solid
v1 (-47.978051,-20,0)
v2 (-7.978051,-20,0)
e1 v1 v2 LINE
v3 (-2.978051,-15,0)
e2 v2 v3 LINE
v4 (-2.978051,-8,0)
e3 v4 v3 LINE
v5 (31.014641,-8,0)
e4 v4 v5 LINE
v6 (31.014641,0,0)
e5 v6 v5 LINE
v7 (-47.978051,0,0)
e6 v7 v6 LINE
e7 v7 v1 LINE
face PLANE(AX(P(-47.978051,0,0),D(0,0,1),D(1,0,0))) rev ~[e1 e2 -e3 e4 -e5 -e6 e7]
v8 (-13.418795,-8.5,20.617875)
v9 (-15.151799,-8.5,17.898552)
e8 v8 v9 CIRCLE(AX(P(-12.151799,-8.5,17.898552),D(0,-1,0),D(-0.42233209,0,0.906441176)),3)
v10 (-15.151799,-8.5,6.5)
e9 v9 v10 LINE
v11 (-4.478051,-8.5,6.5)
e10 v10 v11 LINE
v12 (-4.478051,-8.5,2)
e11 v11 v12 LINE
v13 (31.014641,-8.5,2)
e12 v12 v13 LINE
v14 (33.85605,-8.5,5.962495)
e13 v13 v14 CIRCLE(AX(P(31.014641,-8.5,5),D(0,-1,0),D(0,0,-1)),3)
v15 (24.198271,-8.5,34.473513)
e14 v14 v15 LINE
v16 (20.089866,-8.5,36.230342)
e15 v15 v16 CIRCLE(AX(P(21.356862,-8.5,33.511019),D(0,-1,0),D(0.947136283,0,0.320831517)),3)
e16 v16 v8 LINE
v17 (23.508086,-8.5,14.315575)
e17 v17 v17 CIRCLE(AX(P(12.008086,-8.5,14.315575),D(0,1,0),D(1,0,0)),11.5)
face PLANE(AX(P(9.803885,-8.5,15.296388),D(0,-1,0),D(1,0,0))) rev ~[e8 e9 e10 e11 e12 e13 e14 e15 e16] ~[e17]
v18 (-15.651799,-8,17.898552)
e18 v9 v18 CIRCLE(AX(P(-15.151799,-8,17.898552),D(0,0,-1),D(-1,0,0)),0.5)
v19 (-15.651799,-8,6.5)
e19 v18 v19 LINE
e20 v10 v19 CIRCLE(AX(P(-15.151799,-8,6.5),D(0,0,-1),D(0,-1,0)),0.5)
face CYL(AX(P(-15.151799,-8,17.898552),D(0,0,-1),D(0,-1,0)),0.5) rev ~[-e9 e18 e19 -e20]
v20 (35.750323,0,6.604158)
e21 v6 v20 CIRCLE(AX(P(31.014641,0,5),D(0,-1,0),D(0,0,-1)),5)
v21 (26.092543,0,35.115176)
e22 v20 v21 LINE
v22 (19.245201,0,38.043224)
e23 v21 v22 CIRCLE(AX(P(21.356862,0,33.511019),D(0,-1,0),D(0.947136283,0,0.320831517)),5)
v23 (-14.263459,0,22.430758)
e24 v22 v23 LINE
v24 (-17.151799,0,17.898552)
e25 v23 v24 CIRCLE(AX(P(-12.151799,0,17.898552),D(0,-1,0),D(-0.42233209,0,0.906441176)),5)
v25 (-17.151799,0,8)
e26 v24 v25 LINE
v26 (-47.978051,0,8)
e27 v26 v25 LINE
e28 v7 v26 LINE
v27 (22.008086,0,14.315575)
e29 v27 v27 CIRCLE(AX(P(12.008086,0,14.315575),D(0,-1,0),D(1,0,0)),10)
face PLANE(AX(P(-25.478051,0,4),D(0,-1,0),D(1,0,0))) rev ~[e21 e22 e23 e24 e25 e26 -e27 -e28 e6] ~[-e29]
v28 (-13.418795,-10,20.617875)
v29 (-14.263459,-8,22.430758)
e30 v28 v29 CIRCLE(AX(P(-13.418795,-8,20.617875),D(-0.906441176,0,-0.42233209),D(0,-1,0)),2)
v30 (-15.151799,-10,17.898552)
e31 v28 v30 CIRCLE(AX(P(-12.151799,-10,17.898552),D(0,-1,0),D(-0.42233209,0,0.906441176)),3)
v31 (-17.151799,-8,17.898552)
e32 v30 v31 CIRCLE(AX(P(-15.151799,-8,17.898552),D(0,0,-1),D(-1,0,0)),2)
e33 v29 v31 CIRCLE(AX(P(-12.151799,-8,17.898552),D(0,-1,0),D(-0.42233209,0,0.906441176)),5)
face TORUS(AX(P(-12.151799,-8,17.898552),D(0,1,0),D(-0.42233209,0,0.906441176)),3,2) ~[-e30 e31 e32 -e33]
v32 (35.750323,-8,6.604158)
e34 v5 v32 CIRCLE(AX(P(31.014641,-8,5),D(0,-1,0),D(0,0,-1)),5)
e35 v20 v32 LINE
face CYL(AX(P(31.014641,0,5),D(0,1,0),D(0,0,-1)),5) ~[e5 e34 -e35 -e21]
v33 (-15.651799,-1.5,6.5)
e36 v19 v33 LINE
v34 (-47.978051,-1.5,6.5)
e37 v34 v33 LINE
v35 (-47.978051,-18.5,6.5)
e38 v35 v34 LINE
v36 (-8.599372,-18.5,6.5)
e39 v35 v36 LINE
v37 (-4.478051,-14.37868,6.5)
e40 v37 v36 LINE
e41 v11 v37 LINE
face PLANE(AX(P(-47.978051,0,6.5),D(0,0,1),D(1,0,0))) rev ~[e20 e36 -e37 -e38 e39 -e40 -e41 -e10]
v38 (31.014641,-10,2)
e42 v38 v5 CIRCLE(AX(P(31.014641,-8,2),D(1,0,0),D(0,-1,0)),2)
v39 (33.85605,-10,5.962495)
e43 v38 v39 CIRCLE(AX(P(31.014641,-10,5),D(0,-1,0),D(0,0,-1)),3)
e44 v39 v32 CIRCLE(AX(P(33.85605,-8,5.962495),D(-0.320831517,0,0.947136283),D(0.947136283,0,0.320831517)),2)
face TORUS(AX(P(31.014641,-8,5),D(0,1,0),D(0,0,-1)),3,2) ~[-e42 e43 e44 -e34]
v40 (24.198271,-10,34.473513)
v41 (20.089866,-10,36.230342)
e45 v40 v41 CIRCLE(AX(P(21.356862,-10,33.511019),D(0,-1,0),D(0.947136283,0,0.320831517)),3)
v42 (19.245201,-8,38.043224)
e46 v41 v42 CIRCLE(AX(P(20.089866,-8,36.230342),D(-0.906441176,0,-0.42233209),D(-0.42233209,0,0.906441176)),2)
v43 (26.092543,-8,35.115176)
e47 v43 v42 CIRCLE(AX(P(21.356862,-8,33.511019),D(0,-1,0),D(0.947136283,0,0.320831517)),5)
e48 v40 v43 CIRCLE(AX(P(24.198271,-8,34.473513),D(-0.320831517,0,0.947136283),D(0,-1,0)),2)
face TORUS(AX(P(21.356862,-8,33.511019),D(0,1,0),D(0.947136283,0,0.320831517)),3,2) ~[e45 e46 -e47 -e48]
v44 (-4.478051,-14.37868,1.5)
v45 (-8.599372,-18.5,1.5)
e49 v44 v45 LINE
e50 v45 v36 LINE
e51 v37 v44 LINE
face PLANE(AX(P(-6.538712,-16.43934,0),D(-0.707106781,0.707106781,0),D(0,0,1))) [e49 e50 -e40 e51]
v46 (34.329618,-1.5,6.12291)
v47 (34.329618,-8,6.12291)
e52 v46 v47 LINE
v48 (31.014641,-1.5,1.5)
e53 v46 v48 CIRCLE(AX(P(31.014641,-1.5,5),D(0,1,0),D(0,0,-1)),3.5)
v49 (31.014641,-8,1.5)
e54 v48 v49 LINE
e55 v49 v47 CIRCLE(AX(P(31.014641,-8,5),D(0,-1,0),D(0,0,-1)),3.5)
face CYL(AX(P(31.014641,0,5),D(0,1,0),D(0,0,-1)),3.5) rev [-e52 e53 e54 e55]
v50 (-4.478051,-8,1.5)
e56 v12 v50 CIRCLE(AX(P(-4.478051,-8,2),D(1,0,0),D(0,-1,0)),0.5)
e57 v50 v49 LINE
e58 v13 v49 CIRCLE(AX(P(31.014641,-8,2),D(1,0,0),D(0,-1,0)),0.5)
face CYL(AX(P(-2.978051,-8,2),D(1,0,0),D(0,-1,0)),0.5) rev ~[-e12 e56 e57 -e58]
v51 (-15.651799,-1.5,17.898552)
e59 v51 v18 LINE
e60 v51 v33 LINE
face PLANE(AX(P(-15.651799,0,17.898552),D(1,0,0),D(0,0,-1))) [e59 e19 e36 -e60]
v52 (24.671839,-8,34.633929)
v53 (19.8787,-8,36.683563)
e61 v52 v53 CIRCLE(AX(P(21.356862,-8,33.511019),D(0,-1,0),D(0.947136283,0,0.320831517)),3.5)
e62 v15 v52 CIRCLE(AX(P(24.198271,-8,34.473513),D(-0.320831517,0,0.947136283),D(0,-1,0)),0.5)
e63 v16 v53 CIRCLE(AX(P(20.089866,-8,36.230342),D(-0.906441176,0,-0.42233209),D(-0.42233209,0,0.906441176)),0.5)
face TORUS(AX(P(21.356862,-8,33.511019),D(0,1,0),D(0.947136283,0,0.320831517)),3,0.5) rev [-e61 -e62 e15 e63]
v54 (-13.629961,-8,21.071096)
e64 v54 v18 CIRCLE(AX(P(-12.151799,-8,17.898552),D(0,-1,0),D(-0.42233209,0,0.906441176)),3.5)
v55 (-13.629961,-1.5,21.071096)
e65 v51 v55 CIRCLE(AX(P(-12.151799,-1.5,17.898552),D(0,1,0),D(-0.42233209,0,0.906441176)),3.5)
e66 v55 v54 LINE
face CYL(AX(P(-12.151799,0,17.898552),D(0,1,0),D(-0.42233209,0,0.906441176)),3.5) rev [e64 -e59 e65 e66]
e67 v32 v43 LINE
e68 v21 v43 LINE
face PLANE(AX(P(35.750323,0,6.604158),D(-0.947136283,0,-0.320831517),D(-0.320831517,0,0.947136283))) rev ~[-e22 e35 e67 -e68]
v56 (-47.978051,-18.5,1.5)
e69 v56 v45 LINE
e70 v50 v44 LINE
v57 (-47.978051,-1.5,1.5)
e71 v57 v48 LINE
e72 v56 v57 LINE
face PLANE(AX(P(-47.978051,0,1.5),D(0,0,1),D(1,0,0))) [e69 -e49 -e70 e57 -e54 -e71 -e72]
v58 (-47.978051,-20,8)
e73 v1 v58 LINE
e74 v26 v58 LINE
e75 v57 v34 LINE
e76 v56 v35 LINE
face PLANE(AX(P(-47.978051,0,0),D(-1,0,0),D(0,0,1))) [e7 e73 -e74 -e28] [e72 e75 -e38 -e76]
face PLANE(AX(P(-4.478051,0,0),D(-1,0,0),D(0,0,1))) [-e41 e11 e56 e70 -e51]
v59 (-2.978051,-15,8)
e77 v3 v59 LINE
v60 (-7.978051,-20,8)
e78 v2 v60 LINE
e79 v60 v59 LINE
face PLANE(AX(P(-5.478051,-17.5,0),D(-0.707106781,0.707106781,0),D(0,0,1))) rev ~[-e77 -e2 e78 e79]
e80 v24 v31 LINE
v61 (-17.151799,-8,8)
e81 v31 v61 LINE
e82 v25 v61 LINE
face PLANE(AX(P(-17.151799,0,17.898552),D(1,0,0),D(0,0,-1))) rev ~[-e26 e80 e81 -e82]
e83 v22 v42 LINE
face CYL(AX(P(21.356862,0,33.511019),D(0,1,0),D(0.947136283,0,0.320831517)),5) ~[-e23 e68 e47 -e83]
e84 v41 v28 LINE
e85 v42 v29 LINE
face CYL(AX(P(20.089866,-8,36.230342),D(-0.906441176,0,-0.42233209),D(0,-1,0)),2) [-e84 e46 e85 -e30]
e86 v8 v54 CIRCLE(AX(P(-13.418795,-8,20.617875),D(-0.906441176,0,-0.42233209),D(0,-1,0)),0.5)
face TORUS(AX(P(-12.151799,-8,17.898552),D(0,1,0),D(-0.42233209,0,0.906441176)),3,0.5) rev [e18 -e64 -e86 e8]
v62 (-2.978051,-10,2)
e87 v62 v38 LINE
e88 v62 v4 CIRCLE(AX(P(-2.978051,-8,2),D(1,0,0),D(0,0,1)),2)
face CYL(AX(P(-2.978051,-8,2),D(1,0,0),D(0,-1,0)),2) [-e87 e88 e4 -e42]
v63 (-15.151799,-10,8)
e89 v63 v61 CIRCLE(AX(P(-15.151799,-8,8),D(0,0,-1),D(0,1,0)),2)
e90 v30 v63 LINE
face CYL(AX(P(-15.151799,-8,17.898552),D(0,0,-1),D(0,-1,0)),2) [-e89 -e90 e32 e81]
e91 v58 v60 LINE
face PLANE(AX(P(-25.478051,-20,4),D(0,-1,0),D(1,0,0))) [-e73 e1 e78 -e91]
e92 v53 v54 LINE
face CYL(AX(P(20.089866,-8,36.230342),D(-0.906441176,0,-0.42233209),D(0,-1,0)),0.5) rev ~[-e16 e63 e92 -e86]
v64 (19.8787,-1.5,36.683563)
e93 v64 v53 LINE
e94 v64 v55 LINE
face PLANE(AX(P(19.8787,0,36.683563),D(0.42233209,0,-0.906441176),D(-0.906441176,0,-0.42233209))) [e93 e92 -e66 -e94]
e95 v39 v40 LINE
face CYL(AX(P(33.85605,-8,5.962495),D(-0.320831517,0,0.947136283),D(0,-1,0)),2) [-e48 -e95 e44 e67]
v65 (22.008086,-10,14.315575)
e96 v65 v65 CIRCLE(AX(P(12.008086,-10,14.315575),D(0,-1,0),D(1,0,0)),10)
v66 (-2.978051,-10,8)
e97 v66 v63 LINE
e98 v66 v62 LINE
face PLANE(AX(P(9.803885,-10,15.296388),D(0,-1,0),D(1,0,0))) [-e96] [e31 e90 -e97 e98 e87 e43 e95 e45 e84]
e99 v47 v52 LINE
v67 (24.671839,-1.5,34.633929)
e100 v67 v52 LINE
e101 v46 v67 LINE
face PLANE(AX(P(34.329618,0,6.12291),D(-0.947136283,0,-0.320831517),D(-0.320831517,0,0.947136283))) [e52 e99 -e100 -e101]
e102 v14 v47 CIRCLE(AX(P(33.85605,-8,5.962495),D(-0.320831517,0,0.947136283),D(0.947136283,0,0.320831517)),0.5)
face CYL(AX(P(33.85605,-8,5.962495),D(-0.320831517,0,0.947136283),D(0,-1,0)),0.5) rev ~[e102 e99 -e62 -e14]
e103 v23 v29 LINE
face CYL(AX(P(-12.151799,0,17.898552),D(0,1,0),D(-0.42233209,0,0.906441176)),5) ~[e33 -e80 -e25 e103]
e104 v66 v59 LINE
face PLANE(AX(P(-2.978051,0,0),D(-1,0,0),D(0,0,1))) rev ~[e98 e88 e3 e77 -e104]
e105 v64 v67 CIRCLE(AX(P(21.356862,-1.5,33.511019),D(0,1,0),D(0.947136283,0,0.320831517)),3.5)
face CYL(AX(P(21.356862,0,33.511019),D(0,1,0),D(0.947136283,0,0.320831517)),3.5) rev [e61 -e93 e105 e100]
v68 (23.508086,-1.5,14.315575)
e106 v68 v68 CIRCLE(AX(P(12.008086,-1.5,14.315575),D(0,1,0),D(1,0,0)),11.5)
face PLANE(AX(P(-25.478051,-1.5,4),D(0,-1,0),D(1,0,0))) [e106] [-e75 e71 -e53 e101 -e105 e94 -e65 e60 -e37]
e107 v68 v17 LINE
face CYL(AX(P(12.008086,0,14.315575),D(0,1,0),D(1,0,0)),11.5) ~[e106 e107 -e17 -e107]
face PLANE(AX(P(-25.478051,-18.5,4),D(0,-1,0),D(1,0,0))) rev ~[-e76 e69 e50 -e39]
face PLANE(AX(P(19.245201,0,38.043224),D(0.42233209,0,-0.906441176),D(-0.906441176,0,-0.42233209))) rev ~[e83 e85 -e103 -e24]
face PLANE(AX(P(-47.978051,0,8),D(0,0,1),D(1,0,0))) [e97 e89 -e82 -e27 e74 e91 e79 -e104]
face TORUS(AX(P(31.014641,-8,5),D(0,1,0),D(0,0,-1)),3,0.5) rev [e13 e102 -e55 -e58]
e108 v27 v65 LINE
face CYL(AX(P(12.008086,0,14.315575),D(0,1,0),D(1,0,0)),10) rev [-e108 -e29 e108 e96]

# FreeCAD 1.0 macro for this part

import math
import FreeCAD as App
import Part
import Sketcher

V = App.Vector


def edges_at(feature, points):
    """Names of the edges that pass closest to the given points."""
    edges = feature.Shape.Edges
    near = lambda p: min(range(len(edges)), key=lambda i: edges[i].distToShape(Part.Vertex(*p))[0])
    return sorted({f"Edge{near(p) + 1}" for p in points})


def faces_at(feature, points):
    """Names of the faces that lie closest to the given points."""
    faces = feature.Shape.Faces
    near = lambda p: min(range(len(faces)), key=lambda i: faces[i].distToShape(Part.Vertex(*p))[0])
    return sorted({f"Face{near(p) + 1}" for p in points})


def add_polygon(sketch, points):
    """Adds a closed chain of lines whose ends are joined by coincident constraints."""
    first, n = sketch.GeometryCount, len(points)
    for a, b in zip(points, points[1:] + points[:1]):
        sketch.addGeometry(Part.LineSegment(App.Vector(*a, 0), App.Vector(*b, 0)), False)
    for i in range(n):
        sketch.addConstraint(Sketcher.Constraint("Coincident", first + i, 2, first + (i + 1) % n, 1))

doc = App.newDocument("Part")
body = doc.addObject("PartDesign::Body", "Body")

# Sketch on XZ plane
sketch1 = body.newObject("Sketcher::SketchObject", "Sketch")
sketch1.AttachmentSupport = (doc.getObject("XZ_Plane"), [""])
sketch1.MapMode = "FlatFace"
sketch1.addGeometry(Part.LineSegment(V(-17, 18, 0), V(-17, 5, 0)), False)
sketch1.addGeometry(Part.ArcOfCircle(Part.Circle(V(-12, 5, 0), V(0, 0, 1), 5), math.radians(180), math.radians(270)), False)
sketch1.addGeometry(Part.LineSegment(V(-12, 0, 0), V(31, 0, 0)), False)
sketch1.addGeometry(Part.ArcOfCircle(Part.Circle(V(31, 5, 0), V(0, 0, 1), 5), math.radians(-90), math.radians(19)), False)
sketch1.addGeometry(Part.LineSegment(V(36, 7, 0), V(26, 35, 0)), False)
sketch1.addGeometry(Part.ArcOfCircle(Part.Circle(V(21, 34, 0), V(0, 0, 1), 5), math.radians(19), math.radians(115)), False)
sketch1.addGeometry(Part.LineSegment(V(19, 38, 0), V(-14, 22, 0)), False)
sketch1.addGeometry(Part.ArcOfCircle(Part.Circle(V(-12, 18, 0), V(0, 0, 1), 5), math.radians(115), math.radians(180)), False)
sketch1.addGeometry(Part.Circle(V(12, 14, 0), V(0, 0, 1), 10), False)
sketch1.addConstraint(Sketcher.Constraint("Tangent", 0, 2, 1, 1))
sketch1.addConstraint(Sketcher.Constraint("Tangent", 1, 2, 2, 1))
sketch1.addConstraint(Sketcher.Constraint("Tangent", 2, 2, 3, 1))
sketch1.addConstraint(Sketcher.Constraint("Tangent", 3, 2, 4, 1))
sketch1.addConstraint(Sketcher.Constraint("Tangent", 4, 2, 5, 1))
sketch1.addConstraint(Sketcher.Constraint("Tangent", 5, 2, 6, 1))
sketch1.addConstraint(Sketcher.Constraint("Tangent", 6, 2, 7, 1))
sketch1.addConstraint(Sketcher.Constraint("Tangent", 7, 2, 0, 1))
sketch1.addConstraint(Sketcher.Constraint("Vertical", 0))
sketch1.addConstraint(Sketcher.Constraint("Horizontal", 2))
sketch1.addConstraint(Sketcher.Constraint("Equal", 1, 3))
sketch1.addConstraint(Sketcher.Constraint("Equal", 3, 5))
sketch1.addConstraint(Sketcher.Constraint("Equal", 5, 7))
sketch1.addConstraint(Sketcher.Constraint("PointOnObject", 1, 2, -1))
sketch1.addConstraint(Sketcher.Constraint("Diameter", 8, 20.0))
sketch1.addConstraint(Sketcher.Constraint("Radius", 1, 5.0))
sketch1.addConstraint(Sketcher.Constraint("DistanceX", 2, 1, 2, 2, 43.16644))
sketch1.addConstraint(Sketcher.Constraint("DistanceY", 0, 2, 0, 1, 12.898552))
sketch1.addConstraint(Sketcher.Constraint("DistanceX", 1, 3, -1, 1, 12.151799))
sketch1.addConstraint(Sketcher.Constraint("DistanceX", -1, 1, 5, 2, 19.245201))
sketch1.addConstraint(Sketcher.Constraint("DistanceY", 8, 3, 4, 2, 20.799601))
sketch1.addConstraint(Sketcher.Constraint("DistanceX", 4, 2, 3, 3, 4.922098))
sketch1.addConstraint(Sketcher.Constraint("DistanceX", -1, 1, 8, 3, 12.008086))
pad1 = body.newObject("PartDesign::Pad", "Pad")
pad1.Profile = sketch1
pad1.Length = 10

# Sketch on XZ plane
sketch2 = body.newObject("Sketcher::SketchObject", "Sketch001")
sketch2.AttachmentSupport = (doc.getObject("XZ_Plane"), [""])
sketch2.MapMode = "FlatFace"
add_polygon(sketch2, [(-48, 8), (-48, 0), (-3, 0), (-3, 8)])  # lines 0-3
sketch2.addConstraint(Sketcher.Constraint("Vertical", 0))
sketch2.addConstraint(Sketcher.Constraint("Horizontal", 1))
sketch2.addConstraint(Sketcher.Constraint("Vertical", 2))
sketch2.addConstraint(Sketcher.Constraint("Horizontal", 3))
sketch2.addConstraint(Sketcher.Constraint("PointOnObject", 0, 2, -1))
sketch2.addConstraint(Sketcher.Constraint("DistanceX", 1, 1, 1, 2, 45.0))
sketch2.addConstraint(Sketcher.Constraint("DistanceY", 0, 2, 0, 1, 8.0))
sketch2.addConstraint(Sketcher.Constraint("DistanceX", 0, 2, -1, 1, 47.978051))
pad2 = body.newObject("PartDesign::Pad", "Pad001")
pad2.Profile = sketch2
pad2.Length = 20
doc.recompute()

chamfer = body.newObject("PartDesign::Chamfer", "Chamfer")
chamfer.Base = (pad2, edges_at(pad2, [(-2.978, -20, 4)]))
chamfer.Size = 5
doc.recompute()

fillet = body.newObject("PartDesign::Fillet", "Fillet")
fillet.Base = (chamfer, edges_at(chamfer, [
    (-17.152, -10, 12.949),
    (-16.368, -10, 20.586),
    (2.491, -10, 30.237),
    (23.323, -10, 38.108),
    (30.921, -10, 20.86),
    (35.078, -10, 2.086),
    (14.018, -10, 0),
]))
fillet.Radius = 2
doc.recompute()

thickness = body.newObject("PartDesign::Thickness", "Thickness")
thickness.Base = (fillet, faces_at(fillet, [(-47.978, -10, 4)]))
thickness.Value = 1.5
thickness.Reversed = True
thickness.Join = "Intersection"

doc.recompute()
